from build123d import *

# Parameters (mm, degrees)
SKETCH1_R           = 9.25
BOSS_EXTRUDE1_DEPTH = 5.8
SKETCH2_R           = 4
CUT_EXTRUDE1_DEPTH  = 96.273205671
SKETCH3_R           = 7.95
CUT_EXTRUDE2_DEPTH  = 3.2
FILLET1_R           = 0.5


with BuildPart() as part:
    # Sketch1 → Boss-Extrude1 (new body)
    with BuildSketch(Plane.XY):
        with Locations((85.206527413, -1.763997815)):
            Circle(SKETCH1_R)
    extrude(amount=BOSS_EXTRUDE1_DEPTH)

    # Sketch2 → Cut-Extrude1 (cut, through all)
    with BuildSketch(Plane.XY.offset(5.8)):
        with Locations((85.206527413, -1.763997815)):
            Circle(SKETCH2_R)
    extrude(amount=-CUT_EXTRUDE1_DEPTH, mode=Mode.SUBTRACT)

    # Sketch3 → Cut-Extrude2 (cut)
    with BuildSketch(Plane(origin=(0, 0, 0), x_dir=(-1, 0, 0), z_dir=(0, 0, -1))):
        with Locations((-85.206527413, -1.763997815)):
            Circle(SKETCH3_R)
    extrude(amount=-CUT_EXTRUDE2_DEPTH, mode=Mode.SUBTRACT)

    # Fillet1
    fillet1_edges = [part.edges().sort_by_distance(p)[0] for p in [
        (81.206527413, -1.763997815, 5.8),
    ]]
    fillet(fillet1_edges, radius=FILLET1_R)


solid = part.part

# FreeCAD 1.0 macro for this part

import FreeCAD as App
import Part
import Sketcher

V = App.Vector


def edges_at(feature, points):
    """Names of the edges that pass closest to the given points."""
    edges = feature.Shape.Edges
    near = lambda p: min(range(len(edges)), key=lambda i: edges[i].distToShape(Part.Vertex(*p))[0])
    return sorted({f"Edge{near(p) + 1}" for p in points})

doc = App.newDocument("Part")
body = doc.addObject("PartDesign::Body", "Body")

# Sketch on XY plane
sketch1 = doc.addObject("Sketcher::SketchObject", "Sketch")
body.addObject(sketch1)
sketch1.AttachmentSupport = (doc.XY_Plane, [""])
sketch1.MapMode = "FlatFace"
sketch1.addGeometry(Part.Circle(V(85.206527, -1.763998, 0), V(0, 0, 1), 9.25), False)
sketch1.addConstraint([
    Sketcher.Constraint("Diameter", 0, 18.5),
    Sketcher.Constraint("DistanceX", -1, 1, 0, 3, 85.206527),
    Sketcher.Constraint("DistanceY", 0, 3, -1, 1, 1.763998),
])
pad1 = doc.addObject("PartDesign::Pad", "Pad")
body.addObject(pad1)
pad1.Profile = sketch1
pad1.Length = 5.8

# Sketch on XY plane
sketch2 = doc.addObject("Sketcher::SketchObject", "Sketch001")
body.addObject(sketch2)
sketch2.AttachmentSupport = (doc.XY_Plane, [""])
sketch2.MapMode = "FlatFace"
sketch2.AttachmentOffset = App.Placement(V(0, 0, 5.8), App.Rotation())
sketch2.addGeometry(Part.Circle(V(85.206527, -1.763998, 0), V(0, 0, 1), 4), False)
sketch2.addConstraint([
    Sketcher.Constraint("Diameter", 0, 8.0),
    Sketcher.Constraint("DistanceX", -1, 1, 0, 3, 85.206527),
    Sketcher.Constraint("DistanceY", 0, 3, -1, 1, 1.763998),
])
pocket1 = doc.addObject("PartDesign::Pocket", "Pocket")
body.addObject(pocket1)
pocket1.Profile = sketch2
pocket1.Type = "ThroughAll"

# Sketch on XY plane
sketch3 = doc.addObject("Sketcher::SketchObject", "Sketch002")
body.addObject(sketch3)
sketch3.AttachmentSupport = (doc.XY_Plane, [""])
sketch3.MapMode = "FlatFace"
sketch3.addGeometry(Part.Circle(V(85.206527, -1.763998, 0), V(0, 0, 1), 7.95), False)
sketch3.addConstraint([
    Sketcher.Constraint("Diameter", 0, 15.9),
    Sketcher.Constraint("DistanceX", -1, 1, 0, 3, 85.206527),
    Sketcher.Constraint("DistanceY", 0, 3, -1, 1, 1.763998),
])
pocket2 = doc.addObject("PartDesign::Pocket", "Pocket001")
body.addObject(pocket2)
pocket2.Profile = sketch3
pocket2.Length = 3.2
pocket2.Reversed = True
doc.recompute()

fillet = doc.addObject("PartDesign::Fillet", "Fillet")
body.addObject(fillet)
fillet.Base = (pocket2, edges_at(pocket2, [(81.207, -1.764, 5.8)]))
fillet.Radius = 0.5

doc.recompute()
